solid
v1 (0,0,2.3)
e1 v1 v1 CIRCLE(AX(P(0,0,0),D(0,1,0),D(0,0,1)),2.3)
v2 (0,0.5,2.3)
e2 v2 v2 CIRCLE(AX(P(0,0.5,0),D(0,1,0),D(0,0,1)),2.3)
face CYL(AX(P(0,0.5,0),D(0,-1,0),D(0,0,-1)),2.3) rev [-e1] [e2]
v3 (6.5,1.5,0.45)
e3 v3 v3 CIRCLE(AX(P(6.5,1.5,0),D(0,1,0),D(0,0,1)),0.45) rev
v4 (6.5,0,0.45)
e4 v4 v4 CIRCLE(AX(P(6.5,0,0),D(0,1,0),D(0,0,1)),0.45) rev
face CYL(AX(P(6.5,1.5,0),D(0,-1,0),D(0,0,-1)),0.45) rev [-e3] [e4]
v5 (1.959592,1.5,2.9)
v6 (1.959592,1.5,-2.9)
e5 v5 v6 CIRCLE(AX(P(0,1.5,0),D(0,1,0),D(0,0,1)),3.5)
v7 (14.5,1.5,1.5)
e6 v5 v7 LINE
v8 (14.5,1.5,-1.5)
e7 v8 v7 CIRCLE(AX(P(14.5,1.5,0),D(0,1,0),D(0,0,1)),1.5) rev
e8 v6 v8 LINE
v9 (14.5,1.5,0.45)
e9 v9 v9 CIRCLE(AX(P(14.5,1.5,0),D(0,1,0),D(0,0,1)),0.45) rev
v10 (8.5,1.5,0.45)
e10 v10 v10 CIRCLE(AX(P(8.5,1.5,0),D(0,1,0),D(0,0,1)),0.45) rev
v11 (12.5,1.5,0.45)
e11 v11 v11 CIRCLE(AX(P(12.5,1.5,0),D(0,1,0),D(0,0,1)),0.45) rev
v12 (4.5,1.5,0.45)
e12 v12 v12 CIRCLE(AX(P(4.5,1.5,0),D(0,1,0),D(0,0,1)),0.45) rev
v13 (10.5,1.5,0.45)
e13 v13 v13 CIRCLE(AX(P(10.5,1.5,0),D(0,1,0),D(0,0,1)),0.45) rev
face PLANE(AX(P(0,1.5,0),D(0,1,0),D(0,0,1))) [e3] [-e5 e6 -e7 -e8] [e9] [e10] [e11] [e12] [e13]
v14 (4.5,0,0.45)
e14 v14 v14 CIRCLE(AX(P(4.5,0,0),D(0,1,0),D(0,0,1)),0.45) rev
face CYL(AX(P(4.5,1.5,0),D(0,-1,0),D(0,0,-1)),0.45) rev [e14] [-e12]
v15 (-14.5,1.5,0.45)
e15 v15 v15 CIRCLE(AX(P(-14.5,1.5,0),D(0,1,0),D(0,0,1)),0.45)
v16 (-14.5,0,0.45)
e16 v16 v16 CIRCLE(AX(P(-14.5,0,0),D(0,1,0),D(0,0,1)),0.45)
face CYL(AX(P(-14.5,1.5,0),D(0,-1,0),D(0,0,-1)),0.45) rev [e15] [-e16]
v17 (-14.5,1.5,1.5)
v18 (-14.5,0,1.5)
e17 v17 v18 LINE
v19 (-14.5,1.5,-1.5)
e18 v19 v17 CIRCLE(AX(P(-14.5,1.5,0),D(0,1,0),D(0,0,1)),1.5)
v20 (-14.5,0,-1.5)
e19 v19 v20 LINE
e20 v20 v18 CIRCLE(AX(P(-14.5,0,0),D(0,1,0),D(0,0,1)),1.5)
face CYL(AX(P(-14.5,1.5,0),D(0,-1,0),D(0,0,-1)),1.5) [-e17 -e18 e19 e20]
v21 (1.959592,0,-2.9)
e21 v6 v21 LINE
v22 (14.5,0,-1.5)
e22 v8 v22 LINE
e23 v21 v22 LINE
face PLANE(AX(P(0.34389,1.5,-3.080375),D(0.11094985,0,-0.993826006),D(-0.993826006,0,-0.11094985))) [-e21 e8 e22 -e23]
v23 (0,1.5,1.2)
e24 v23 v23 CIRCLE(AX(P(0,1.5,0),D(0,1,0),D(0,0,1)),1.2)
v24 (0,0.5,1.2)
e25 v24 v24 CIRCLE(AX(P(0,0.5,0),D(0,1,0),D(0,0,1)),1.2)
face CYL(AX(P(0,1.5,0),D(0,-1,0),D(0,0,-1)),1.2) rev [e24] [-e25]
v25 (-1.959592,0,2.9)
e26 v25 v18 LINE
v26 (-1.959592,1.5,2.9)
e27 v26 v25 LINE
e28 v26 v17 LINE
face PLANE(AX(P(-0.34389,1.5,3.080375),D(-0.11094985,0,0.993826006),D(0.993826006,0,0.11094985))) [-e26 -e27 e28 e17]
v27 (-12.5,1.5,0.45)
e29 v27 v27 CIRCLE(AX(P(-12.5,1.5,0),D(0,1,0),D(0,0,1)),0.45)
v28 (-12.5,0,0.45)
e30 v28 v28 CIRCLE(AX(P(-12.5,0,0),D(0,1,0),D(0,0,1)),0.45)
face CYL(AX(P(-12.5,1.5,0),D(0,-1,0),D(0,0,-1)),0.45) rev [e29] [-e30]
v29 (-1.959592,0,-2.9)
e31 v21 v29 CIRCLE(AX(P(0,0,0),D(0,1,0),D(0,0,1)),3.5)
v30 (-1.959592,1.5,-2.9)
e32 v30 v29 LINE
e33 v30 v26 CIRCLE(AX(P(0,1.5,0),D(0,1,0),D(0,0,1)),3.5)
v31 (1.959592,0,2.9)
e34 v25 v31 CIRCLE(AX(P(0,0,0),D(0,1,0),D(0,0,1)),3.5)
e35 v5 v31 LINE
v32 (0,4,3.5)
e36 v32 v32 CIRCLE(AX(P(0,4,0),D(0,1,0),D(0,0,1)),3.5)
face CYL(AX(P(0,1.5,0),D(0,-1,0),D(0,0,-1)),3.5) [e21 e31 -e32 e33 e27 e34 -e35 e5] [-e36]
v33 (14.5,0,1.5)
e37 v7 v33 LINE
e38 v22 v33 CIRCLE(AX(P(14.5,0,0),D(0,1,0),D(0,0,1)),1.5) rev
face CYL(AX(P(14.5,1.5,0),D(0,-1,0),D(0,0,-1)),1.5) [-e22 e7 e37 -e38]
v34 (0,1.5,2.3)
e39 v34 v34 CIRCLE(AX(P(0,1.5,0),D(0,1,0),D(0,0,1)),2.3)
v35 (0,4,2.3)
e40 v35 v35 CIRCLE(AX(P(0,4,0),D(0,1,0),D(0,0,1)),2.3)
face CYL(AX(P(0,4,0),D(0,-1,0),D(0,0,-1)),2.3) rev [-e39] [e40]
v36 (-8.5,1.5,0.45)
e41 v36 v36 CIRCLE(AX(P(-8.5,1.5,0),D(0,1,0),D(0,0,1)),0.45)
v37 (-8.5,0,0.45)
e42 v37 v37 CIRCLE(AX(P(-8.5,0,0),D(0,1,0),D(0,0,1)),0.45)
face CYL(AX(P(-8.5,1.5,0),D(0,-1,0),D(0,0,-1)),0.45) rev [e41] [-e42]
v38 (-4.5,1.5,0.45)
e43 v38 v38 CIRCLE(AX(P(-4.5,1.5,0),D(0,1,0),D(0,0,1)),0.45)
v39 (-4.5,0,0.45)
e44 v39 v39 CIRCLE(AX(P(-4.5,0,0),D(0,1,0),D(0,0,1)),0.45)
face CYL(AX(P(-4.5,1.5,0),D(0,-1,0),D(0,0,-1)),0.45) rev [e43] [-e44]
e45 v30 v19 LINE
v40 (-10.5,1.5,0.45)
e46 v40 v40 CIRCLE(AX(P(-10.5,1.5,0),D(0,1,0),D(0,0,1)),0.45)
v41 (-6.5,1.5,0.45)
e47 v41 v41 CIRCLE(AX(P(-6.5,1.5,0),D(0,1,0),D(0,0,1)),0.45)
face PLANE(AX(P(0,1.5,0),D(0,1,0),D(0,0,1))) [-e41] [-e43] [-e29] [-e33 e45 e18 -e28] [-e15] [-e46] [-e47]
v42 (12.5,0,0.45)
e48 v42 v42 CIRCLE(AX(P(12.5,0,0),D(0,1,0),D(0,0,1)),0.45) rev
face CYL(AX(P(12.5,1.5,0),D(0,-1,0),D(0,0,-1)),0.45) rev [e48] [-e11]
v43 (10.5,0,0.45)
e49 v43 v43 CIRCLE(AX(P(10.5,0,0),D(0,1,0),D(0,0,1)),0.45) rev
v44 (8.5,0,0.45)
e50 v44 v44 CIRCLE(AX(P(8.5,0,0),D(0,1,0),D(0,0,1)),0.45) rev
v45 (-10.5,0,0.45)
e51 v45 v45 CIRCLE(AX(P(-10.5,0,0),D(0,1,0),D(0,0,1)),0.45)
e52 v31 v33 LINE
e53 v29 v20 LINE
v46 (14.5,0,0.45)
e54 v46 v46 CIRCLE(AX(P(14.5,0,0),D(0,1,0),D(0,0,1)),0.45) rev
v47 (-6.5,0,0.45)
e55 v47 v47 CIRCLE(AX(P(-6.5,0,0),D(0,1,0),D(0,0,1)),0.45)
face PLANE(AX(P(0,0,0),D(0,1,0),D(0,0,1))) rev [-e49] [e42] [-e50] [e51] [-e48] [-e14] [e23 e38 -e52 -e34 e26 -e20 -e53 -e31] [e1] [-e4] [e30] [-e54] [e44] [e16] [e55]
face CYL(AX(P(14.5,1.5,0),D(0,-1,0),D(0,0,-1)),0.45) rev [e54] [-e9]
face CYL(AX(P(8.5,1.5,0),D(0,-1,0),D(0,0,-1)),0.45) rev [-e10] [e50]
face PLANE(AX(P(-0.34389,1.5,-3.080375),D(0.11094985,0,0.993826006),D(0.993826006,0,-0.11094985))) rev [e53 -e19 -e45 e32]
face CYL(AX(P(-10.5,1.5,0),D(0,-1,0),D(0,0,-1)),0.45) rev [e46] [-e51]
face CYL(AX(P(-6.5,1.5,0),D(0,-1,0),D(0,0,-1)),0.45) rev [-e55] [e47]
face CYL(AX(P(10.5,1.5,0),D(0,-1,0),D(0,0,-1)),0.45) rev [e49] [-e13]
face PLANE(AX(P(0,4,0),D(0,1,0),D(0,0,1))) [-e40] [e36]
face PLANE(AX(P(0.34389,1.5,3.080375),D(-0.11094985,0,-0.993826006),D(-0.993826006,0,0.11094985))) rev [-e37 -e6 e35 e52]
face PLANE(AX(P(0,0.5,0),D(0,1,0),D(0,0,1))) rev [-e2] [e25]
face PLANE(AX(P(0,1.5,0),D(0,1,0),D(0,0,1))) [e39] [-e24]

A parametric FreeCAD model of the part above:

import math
import FreeCAD as App
import Part
import Sketcher
from FreeCAD import Vector
Q = App.Units.Quantity

doc = App.newDocument("Part")
body = doc.addObject("PartDesign::Body", "Body")

sketch1 = body.newObject("Sketcher::SketchObject", "Sketch")
sketch1.AttachmentSupport = (doc.getObject("XZ_Plane"), [""])
sketch1.MapMode = "FlatFace"
sketch1.addGeometry(Part.LineSegment(Vector(-14.5, 1.5, 0), Vector(-1.96, 2.9, 0)), False)
sketch1.addGeometry(Part.ArcOfCircle(Part.Circle(Vector(0, 0, 0), Vector(0, 0, 1), 3.5), math.radians(56), math.radians(124)), False)
sketch1.addGeometry(Part.LineSegment(Vector(1.96, 2.9, 0), Vector(14.5, 1.5, 0)), False)
sketch1.addGeometry(Part.ArcOfCircle(Part.Circle(Vector(14.5, 0, 0), Vector(0, 0, 1), 1.5), math.radians(-90), math.radians(90)), False)
sketch1.addGeometry(Part.LineSegment(Vector(14.5, -1.5, 0), Vector(1.96, -2.9, 0)), False)
sketch1.addGeometry(Part.ArcOfCircle(Part.Circle(Vector(0, 0, 0), Vector(0, 0, 1), 3.5), math.radians(-124), math.radians(-56)), False)
sketch1.addGeometry(Part.LineSegment(Vector(-1.96, -2.9, 0), Vector(-14.5, -1.5, 0)), False)
sketch1.addGeometry(Part.ArcOfCircle(Part.Circle(Vector(-14.5, 0, 0), Vector(0, 0, 1), 1.5), math.radians(90), math.radians(270)), False)
sketch1.addGeometry(Part.Circle(Vector(-14.5, 0, 0), Vector(0, 0, 1), 0.45), False)
sketch1.addGeometry(Part.Circle(Vector(-12.5, 0, 0), Vector(0, 0, 1), 0.45), False)
sketch1.addGeometry(Part.Circle(Vector(-10.5, 0, 0), Vector(0, 0, 1), 0.45), False)
sketch1.addGeometry(Part.Circle(Vector(-8.5, 0, 0), Vector(0, 0, 1), 0.45), False)
sketch1.addGeometry(Part.Circle(Vector(-6.5, 0, 0), Vector(0, 0, 1), 0.45), False)
sketch1.addGeometry(Part.Circle(Vector(-4.5, 0, 0), Vector(0, 0, 1), 0.45), False)
sketch1.addGeometry(Part.Circle(Vector(14.5, 0, 0), Vector(0, 0, 1), 0.45), False)
sketch1.addGeometry(Part.Circle(Vector(12.5, 0, 0), Vector(0, 0, 1), 0.45), False)
sketch1.addGeometry(Part.Circle(Vector(4.5, 0, 0), Vector(0, 0, 1), 0.45), False)
sketch1.addGeometry(Part.Circle(Vector(6.5, 0, 0), Vector(0, 0, 1), 0.45), False)
sketch1.addGeometry(Part.Circle(Vector(8.5, 0, 0), Vector(0, 0, 1), 0.45), False)
sketch1.addGeometry(Part.Circle(Vector(10.5, 0, 0), Vector(0, 0, 1), 0.45), False)
sketch1.addGeometry(Part.Circle(Vector(0, 0, 0), Vector(0, 0, 1), 1.2), False)
sketch1.addConstraint(Sketcher.Constraint("Coincident", 0, 2, 1, 2))
sketch1.addConstraint(Sketcher.Constraint("Coincident", 1, 1, 2, 1))
sketch1.addConstraint(Sketcher.Constraint("Coincident", 2, 2, 3, 2))
sketch1.addConstraint(Sketcher.Constraint("Coincident", 3, 1, 4, 1))
sketch1.addConstraint(Sketcher.Constraint("Coincident", 4, 2, 5, 2))
sketch1.addConstraint(Sketcher.Constraint("Coincident", 5, 1, 6, 1))
sketch1.addConstraint(Sketcher.Constraint("Coincident", 6, 2, 7, 2))
sketch1.addConstraint(Sketcher.Constraint("Coincident", 7, 1, 0, 1))
sketch1.addConstraint(Sketcher.Constraint("Coincident", 1, 3, -1, 1))
sketch1.addConstraint(Sketcher.Constraint("Coincident", 5, 3, -1, 1))
sketch1.addConstraint(Sketcher.Constraint("Coincident", 20, 3, -1, 1))
sketch1.addConstraint(Sketcher.Constraint("Coincident", 8, 3, 7, 3))
sketch1.addConstraint(Sketcher.Constraint("Coincident", 14, 3, 3, 3))
sketch1.addConstraint(Sketcher.Constraint("Equal", 1, 5))
sketch1.addConstraint(Sketcher.Constraint("Equal", 3, 7))
sketch1.addConstraint(Sketcher.Constraint("Equal", 8, 9))
sketch1.addConstraint(Sketcher.Constraint("Equal", 9, 10))
sketch1.addConstraint(Sketcher.Constraint("Equal", 10, 11))
sketch1.addConstraint(Sketcher.Constraint("Equal", 11, 12))
sketch1.addConstraint(Sketcher.Constraint("Equal", 12, 13))
sketch1.addConstraint(Sketcher.Constraint("Equal", 13, 14))
sketch1.addConstraint(Sketcher.Constraint("Equal", 14, 15))
sketch1.addConstraint(Sketcher.Constraint("Equal", 15, 16))
sketch1.addConstraint(Sketcher.Constraint("Equal", 16, 17))
sketch1.addConstraint(Sketcher.Constraint("Equal", 17, 18))
sketch1.addConstraint(Sketcher.Constraint("Equal", 18, 19))
sketch1.addConstraint(Sketcher.Constraint("Symmetric", 3, 3, 7, 3, -1, 1))
sketch1.addConstraint(Sketcher.Constraint("Symmetric", 9, 3, 15, 3, -1, 1))
sketch1.addConstraint(Sketcher.Constraint("Symmetric", 13, 3, 16, 3, -1, 1))
sketch1.addConstraint(Sketcher.Constraint("Symmetric", 12, 3, 17, 3, -1, 1))
sketch1.addConstraint(Sketcher.Constraint("Symmetric", 11, 3, 18, 3, -1, 1))
sketch1.addConstraint(Sketcher.Constraint("Symmetric", 10, 3, 19, 3, -1, 1))
sketch1.addConstraint(Sketcher.Constraint("Symmetric", 3, 1, 6, 2, -2))
sketch1.addConstraint(Sketcher.Constraint("PointOnObject", 9, 3, -1))
sketch1.addConstraint(Sketcher.Constraint("PointOnObject", 10, 3, -1))
sketch1.addConstraint(Sketcher.Constraint("PointOnObject", 11, 3, -1))
sketch1.addConstraint(Sketcher.Constraint("PointOnObject", 12, 3, -1))
sketch1.addConstraint(Sketcher.Constraint("PointOnObject", 13, 3, -1))
sketch1.addConstraint(Sketcher.Constraint("Parallel", 0, 4))
sketch1.addConstraint(Sketcher.Constraint("Parallel", 2, 6))
sketch1.addConstraint(Sketcher.Constraint("Horizontal", 0, 2, 1, 1))
sketch1.addConstraint(Sketcher.Constraint("Horizontal", 4, 2, 5, 1))
sketch1.addConstraint(Sketcher.Constraint("Vertical", 14, 3, 2, 2))
sketch1.addConstraint(Sketcher.Constraint("Vertical", 2, 2, 3, 1))
sketch1.addConstraint(Sketcher.Constraint("Diameter", 8, Q("0.9 mm")))
sketch1.addConstraint(Sketcher.Constraint("Diameter", 20, Q("2.4 mm")))
sketch1.addConstraint(Sketcher.Constraint("Radius", 1, Q("3.5 mm")))
sketch1.addConstraint(Sketcher.Constraint("Radius", 3, Q("1.5 mm")))
sketch1.addConstraint(Sketcher.Constraint("DistanceX", 7, 3, 3, 3, Q("29 mm")))
sketch1.addConstraint(Sketcher.Constraint("DistanceX", 7, 3, 9, 3, Q("2 mm")))
sketch1.addConstraint(Sketcher.Constraint("DistanceX", 9, 3, 10, 3, Q("2 mm")))
sketch1.addConstraint(Sketcher.Constraint("DistanceX", 10, 3, 11, 3, Q("2 mm")))
sketch1.addConstraint(Sketcher.Constraint("DistanceX", 11, 3, 12, 3, Q("2 mm")))
sketch1.addConstraint(Sketcher.Constraint("DistanceX", 12, 3, 13, 3, Q("2 mm")))
sketch1.addConstraint(Sketcher.Constraint("DistanceY", -1, 1, 0, 2, Q("2.9 mm")))
pad1 = body.newObject("PartDesign::Pad", "Pad")
pad1.Profile = sketch1
pad1.Length = 1.5
pad1.Reversed = True

sketch2 = body.newObject("Sketcher::SketchObject", "Sketch001")
sketch2.AttachmentSupport = (doc.getObject("XZ_Plane"), [""])
sketch2.MapMode = "FlatFace"
sketch2.AttachmentOffset = App.Placement(Vector(0, 0, -1.5), App.Rotation())
sketch2.addGeometry(Part.Circle(Vector(0, 0, 0), Vector(0, 0, 1), 3.5), False)
sketch2.addGeometry(Part.Circle(Vector(0, 0, 0), Vector(0, 0, 1), 2.3), False)
sketch2.addConstraint(Sketcher.Constraint("Coincident", 0, 3, -1, 1))
sketch2.addConstraint(Sketcher.Constraint("Coincident", 1, 3, -1, 1))
sketch2.addConstraint(Sketcher.Constraint("Diameter", 0, Q("7 mm")))
sketch2.addConstraint(Sketcher.Constraint("Diameter", 1, Q("4.6 mm")))
pad2 = body.newObject("PartDesign::Pad", "Pad001")
pad2.Profile = sketch2
pad2.Length = 2.5
pad2.Reversed = True

sketch3 = body.newObject("Sketcher::SketchObject", "Sketch002")
sketch3.AttachmentSupport = (doc.getObject("XZ_Plane"), [""])
sketch3.MapMode = "FlatFace"
sketch3.addGeometry(Part.Circle(Vector(0, 0, 0), Vector(0, 0, 1), 2.3), False)
sketch3.addGeometry(Part.Circle(Vector(0, 0, 0), Vector(0, 0, 1), 1.2), False)
sketch3.addConstraint(Sketcher.Constraint("Coincident", 0, 3, -1, 1))
sketch3.addConstraint(Sketcher.Constraint("Coincident", 1, 3, -1, 1))
sketch3.addConstraint(Sketcher.Constraint("Diameter", 0, Q("4.6 mm")))
sketch3.addConstraint(Sketcher.Constraint("Diameter", 1, Q("2.4 mm")))
pocket1 = body.newObject("PartDesign::Pocket", "Pocket")
pocket1.Profile = sketch3
pocket1.Length = 0.5

doc.recompute()
